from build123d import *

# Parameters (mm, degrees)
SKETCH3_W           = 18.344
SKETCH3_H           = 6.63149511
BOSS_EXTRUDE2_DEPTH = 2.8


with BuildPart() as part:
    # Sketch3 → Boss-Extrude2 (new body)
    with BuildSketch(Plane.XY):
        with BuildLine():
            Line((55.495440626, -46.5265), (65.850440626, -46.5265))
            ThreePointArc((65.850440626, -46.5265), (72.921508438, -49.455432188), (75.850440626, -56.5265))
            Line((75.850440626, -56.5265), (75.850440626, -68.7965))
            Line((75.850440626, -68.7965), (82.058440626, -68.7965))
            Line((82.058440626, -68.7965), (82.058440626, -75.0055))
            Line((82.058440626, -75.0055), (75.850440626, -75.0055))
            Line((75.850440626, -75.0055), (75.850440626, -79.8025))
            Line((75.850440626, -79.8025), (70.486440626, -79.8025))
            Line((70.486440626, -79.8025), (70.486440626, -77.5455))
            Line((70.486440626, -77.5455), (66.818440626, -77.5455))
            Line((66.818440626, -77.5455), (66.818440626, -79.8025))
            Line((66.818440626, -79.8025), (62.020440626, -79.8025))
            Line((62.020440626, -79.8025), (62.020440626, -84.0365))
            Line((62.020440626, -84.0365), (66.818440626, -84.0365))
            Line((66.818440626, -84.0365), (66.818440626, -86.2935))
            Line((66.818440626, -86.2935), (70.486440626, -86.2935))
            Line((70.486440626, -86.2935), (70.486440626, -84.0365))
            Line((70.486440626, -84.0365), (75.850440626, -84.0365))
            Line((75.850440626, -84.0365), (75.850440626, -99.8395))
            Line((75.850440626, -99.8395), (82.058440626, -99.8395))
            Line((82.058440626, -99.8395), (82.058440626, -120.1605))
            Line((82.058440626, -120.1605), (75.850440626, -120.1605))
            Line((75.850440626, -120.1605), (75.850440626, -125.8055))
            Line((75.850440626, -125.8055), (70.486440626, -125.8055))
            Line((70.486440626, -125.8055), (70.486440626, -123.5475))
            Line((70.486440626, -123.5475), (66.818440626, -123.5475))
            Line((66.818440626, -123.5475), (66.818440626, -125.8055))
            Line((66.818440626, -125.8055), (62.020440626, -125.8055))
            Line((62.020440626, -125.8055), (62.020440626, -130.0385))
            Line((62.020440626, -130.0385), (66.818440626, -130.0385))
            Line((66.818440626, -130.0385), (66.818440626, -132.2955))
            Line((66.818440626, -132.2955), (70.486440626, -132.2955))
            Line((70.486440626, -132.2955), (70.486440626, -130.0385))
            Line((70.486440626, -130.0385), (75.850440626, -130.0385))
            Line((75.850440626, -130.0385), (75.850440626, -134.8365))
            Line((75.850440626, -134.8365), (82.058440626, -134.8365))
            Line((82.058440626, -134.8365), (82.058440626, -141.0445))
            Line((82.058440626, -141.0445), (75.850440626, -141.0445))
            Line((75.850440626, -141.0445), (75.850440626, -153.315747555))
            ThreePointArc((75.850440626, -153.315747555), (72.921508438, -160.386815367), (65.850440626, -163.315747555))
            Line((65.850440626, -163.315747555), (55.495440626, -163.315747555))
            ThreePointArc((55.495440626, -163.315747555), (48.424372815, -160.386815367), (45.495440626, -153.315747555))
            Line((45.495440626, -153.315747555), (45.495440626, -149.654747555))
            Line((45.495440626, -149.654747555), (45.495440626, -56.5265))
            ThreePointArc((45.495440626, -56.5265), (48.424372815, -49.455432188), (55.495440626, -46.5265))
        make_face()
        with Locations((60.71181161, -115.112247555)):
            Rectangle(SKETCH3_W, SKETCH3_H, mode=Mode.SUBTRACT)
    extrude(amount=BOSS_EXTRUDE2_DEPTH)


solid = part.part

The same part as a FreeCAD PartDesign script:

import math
import FreeCAD as App
import Part
import Sketcher
Q = App.Units.Quantity

doc = App.newDocument("Part")
body = doc.addObject("PartDesign::Body", "Body")

# Sketch on XY plane
sketch1 = body.newObject("Sketcher::SketchObject", "Sketch")
sketch1.AttachmentSupport = (doc.getObject("XY_Plane"), [""])
sketch1.MapMode = "FlatFace"
sketch1.addGeometry([
    Part.LineSegment(App.Vector(65.850441, -46.5265, 0), App.Vector(55.495441, -46.5265, 0)),  # 0
    Part.ArcOfCircle(Part.Circle(App.Vector(55.495441, -56.5265, 0), App.Vector(0, 0, 1), 10), math.radians(90), math.radians(180)),  # 1
    Part.LineSegment(App.Vector(45.495441, -56.5265, 0), App.Vector(45.495441, -153.315748, 0)),  # 2
    Part.ArcOfCircle(Part.Circle(App.Vector(55.495441, -153.315748, 0), App.Vector(0, 0, 1), 10), math.radians(-180), math.radians(-90)),  # 3
    Part.LineSegment(App.Vector(55.495441, -163.315748, 0), App.Vector(65.850441, -163.315748, 0)),  # 4
    Part.ArcOfCircle(Part.Circle(App.Vector(65.850441, -153.315748, 0), App.Vector(0, 0, 1), 10), math.radians(-90), math.radians(0)),  # 5
    Part.LineSegment(App.Vector(75.850441, -153.315748, 0), App.Vector(75.850441, -141.0445, 0)),  # 6
    Part.LineSegment(App.Vector(75.850441, -141.0445, 0), App.Vector(82.058441, -141.0445, 0)),  # 7
    Part.LineSegment(App.Vector(82.058441, -141.0445, 0), App.Vector(82.058441, -134.8365, 0)),  # 8
    Part.LineSegment(App.Vector(82.058441, -134.8365, 0), App.Vector(75.850441, -134.8365, 0)),  # 9
    Part.LineSegment(App.Vector(75.850441, -134.8365, 0), App.Vector(75.850441, -130.0385, 0)),  # 10
    Part.LineSegment(App.Vector(75.850441, -130.0385, 0), App.Vector(70.486441, -130.0385, 0)),  # 11
    Part.LineSegment(App.Vector(70.486441, -130.0385, 0), App.Vector(70.486441, -132.2955, 0)),  # 12
    Part.LineSegment(App.Vector(70.486441, -132.2955, 0), App.Vector(66.818441, -132.2955, 0)),  # 13
    Part.LineSegment(App.Vector(66.818441, -132.2955, 0), App.Vector(66.818441, -130.0385, 0)),  # 14
    Part.LineSegment(App.Vector(66.818441, -130.0385, 0), App.Vector(62.020441, -130.0385, 0)),  # 15
    Part.LineSegment(App.Vector(62.020441, -130.0385, 0), App.Vector(62.020441, -125.8055, 0)),  # 16
    Part.LineSegment(App.Vector(62.020441, -125.8055, 0), App.Vector(66.818441, -125.8055, 0)),  # 17
    Part.LineSegment(App.Vector(66.818441, -125.8055, 0), App.Vector(66.818441, -123.5475, 0)),  # 18
    Part.LineSegment(App.Vector(66.818441, -123.5475, 0), App.Vector(70.486441, -123.5475, 0)),  # 19
    Part.LineSegment(App.Vector(70.486441, -123.5475, 0), App.Vector(70.486441, -125.8055, 0)),  # 20
    Part.LineSegment(App.Vector(70.486441, -125.8055, 0), App.Vector(75.850441, -125.8055, 0)),  # 21
    Part.LineSegment(App.Vector(75.850441, -125.8055, 0), App.Vector(75.850441, -120.1605, 0)),  # 22
    Part.LineSegment(App.Vector(75.850441, -120.1605, 0), App.Vector(82.058441, -120.1605, 0)),  # 23
    Part.LineSegment(App.Vector(82.058441, -120.1605, 0), App.Vector(82.058441, -99.8395, 0)),  # 24
    Part.LineSegment(App.Vector(82.058441, -99.8395, 0), App.Vector(75.850441, -99.8395, 0)),  # 25
    Part.LineSegment(App.Vector(75.850441, -99.8395, 0), App.Vector(75.850441, -84.0365, 0)),  # 26
    Part.LineSegment(App.Vector(75.850441, -84.0365, 0), App.Vector(70.486441, -84.0365, 0)),  # 27
    Part.LineSegment(App.Vector(70.486441, -84.0365, 0), App.Vector(70.486441, -86.2935, 0)),  # 28
    Part.LineSegment(App.Vector(70.486441, -86.2935, 0), App.Vector(66.818441, -86.2935, 0)),  # 29
    Part.LineSegment(App.Vector(66.818441, -86.2935, 0), App.Vector(66.818441, -84.0365, 0)),  # 30
    Part.LineSegment(App.Vector(66.818441, -84.0365, 0), App.Vector(62.020441, -84.0365, 0)),  # 31
    Part.LineSegment(App.Vector(62.020441, -84.0365, 0), App.Vector(62.020441, -79.8025, 0)),  # 32
    Part.LineSegment(App.Vector(62.020441, -79.8025, 0), App.Vector(66.818441, -79.8025, 0)),  # 33
    Part.LineSegment(App.Vector(66.818441, -79.8025, 0), App.Vector(66.818441, -77.5455, 0)),  # 34
    Part.LineSegment(App.Vector(66.818441, -77.5455, 0), App.Vector(70.486441, -77.5455, 0)),  # 35
    Part.LineSegment(App.Vector(70.486441, -77.5455, 0), App.Vector(70.486441, -79.8025, 0)),  # 36
    Part.LineSegment(App.Vector(70.486441, -79.8025, 0), App.Vector(75.850441, -79.8025, 0)),  # 37
    Part.LineSegment(App.Vector(75.850441, -79.8025, 0), App.Vector(75.850441, -75.0055, 0)),  # 38
    Part.LineSegment(App.Vector(75.850441, -75.0055, 0), App.Vector(82.058441, -75.0055, 0)),  # 39
    Part.LineSegment(App.Vector(82.058441, -75.0055, 0), App.Vector(82.058441, -68.7965, 0)),  # 40
    Part.LineSegment(App.Vector(82.058441, -68.7965, 0), App.Vector(75.850441, -68.7965, 0)),  # 41
    Part.LineSegment(App.Vector(75.850441, -68.7965, 0), App.Vector(75.850441, -56.5265, 0)),  # 42
    Part.ArcOfCircle(Part.Circle(App.Vector(65.850441, -56.5265, 0), App.Vector(0, 0, 1), 10), math.radians(0), math.radians(90)),  # 43
    Part.LineSegment(App.Vector(51.539812, -118.427995, 0), App.Vector(51.539812, -111.7965, 0)),  # 44
    Part.LineSegment(App.Vector(51.539812, -111.7965, 0), App.Vector(69.883812, -111.7965, 0)),  # 45
    Part.LineSegment(App.Vector(69.883812, -111.7965, 0), App.Vector(69.883812, -118.427995, 0)),  # 46
    Part.LineSegment(App.Vector(69.883812, -118.427995, 0), App.Vector(51.539812, -118.427995, 0)),  # 47
], False)
sketch1.addConstraint([
    Sketcher.Constraint("Tangent", 0, 2, 1, 1),
    Sketcher.Constraint("Tangent", 1, 2, 2, 1),
    Sketcher.Constraint("Tangent", 2, 2, 3, 1),
    Sketcher.Constraint("Tangent", 3, 2, 4, 1),
    Sketcher.Constraint("Tangent", 4, 2, 5, 1),
    Sketcher.Constraint("Tangent", 5, 2, 6, 1),
    Sketcher.Constraint("Coincident", 6, 2, 7, 1),
    Sketcher.Constraint("Coincident", 7, 2, 8, 1),
    Sketcher.Constraint("Coincident", 8, 2, 9, 1),
    Sketcher.Constraint("Coincident", 9, 2, 10, 1),
    Sketcher.Constraint("Coincident", 10, 2, 11, 1),
    Sketcher.Constraint("Coincident", 11, 2, 12, 1),
    Sketcher.Constraint("Coincident", 12, 2, 13, 1),
    Sketcher.Constraint("Coincident", 13, 2, 14, 1),
    Sketcher.Constraint("Coincident", 14, 2, 15, 1),
    Sketcher.Constraint("Coincident", 15, 2, 16, 1),
    Sketcher.Constraint("Coincident", 16, 2, 17, 1),
    Sketcher.Constraint("Coincident", 17, 2, 18, 1),
    Sketcher.Constraint("Coincident", 18, 2, 19, 1),
    Sketcher.Constraint("Coincident", 19, 2, 20, 1),
    Sketcher.Constraint("Coincident", 20, 2, 21, 1),
    Sketcher.Constraint("Coincident", 21, 2, 22, 1),
    Sketcher.Constraint("Coincident", 22, 2, 23, 1),
    Sketcher.Constraint("Coincident", 23, 2, 24, 1),
    Sketcher.Constraint("Coincident", 24, 2, 25, 1),
    Sketcher.Constraint("Coincident", 25, 2, 26, 1),
    Sketcher.Constraint("Coincident", 26, 2, 27, 1),
    Sketcher.Constraint("Coincident", 27, 2, 28, 1),
    Sketcher.Constraint("Coincident", 28, 2, 29, 1),
    Sketcher.Constraint("Coincident", 29, 2, 30, 1),
    Sketcher.Constraint("Coincident", 30, 2, 31, 1),
    Sketcher.Constraint("Coincident", 31, 2, 32, 1),
    Sketcher.Constraint("Coincident", 32, 2, 33, 1),
    Sketcher.Constraint("Coincident", 33, 2, 34, 1),
    Sketcher.Constraint("Coincident", 34, 2, 35, 1),
    Sketcher.Constraint("Coincident", 35, 2, 36, 1),
    Sketcher.Constraint("Coincident", 36, 2, 37, 1),
    Sketcher.Constraint("Coincident", 37, 2, 38, 1),
    Sketcher.Constraint("Coincident", 38, 2, 39, 1),
    Sketcher.Constraint("Coincident", 39, 2, 40, 1),
    Sketcher.Constraint("Coincident", 40, 2, 41, 1),
    Sketcher.Constraint("Coincident", 41, 2, 42, 1),
    Sketcher.Constraint("Tangent", 42, 2, 43, 1),
    Sketcher.Constraint("Tangent", 43, 2, 0, 1),
    Sketcher.Constraint("Coincident", 44, 2, 45, 1),
    Sketcher.Constraint("Coincident", 45, 2, 46, 1),
    Sketcher.Constraint("Coincident", 46, 2, 47, 1),
    Sketcher.Constraint("Coincident", 47, 2, 44, 1),
    Sketcher.Constraint("Horizontal", 0),
    Sketcher.Constraint("Vertical", 2),
    Sketcher.Constraint("Horizontal", 4),
    Sketcher.Constraint("Vertical", 6),
    Sketcher.Constraint("Horizontal", 7),
    Sketcher.Constraint("Vertical", 8),
    Sketcher.Constraint("Horizontal", 9),
    Sketcher.Constraint("Vertical", 10),
    Sketcher.Constraint("Horizontal", 11),
    Sketcher.Constraint("Vertical", 12),
    Sketcher.Constraint("Horizontal", 13),
    Sketcher.Constraint("Vertical", 14),
    Sketcher.Constraint("Horizontal", 15),
    Sketcher.Constraint("Vertical", 16),
    Sketcher.Constraint("Horizontal", 17),
    Sketcher.Constraint("Vertical", 18),
    Sketcher.Constraint("Horizontal", 19),
    Sketcher.Constraint("Vertical", 20),
    Sketcher.Constraint("Horizontal", 21),
    Sketcher.Constraint("Vertical", 22),
    Sketcher.Constraint("Horizontal", 23),
    Sketcher.Constraint("Vertical", 24),
    Sketcher.Constraint("Horizontal", 25),
    Sketcher.Constraint("Vertical", 26),
    Sketcher.Constraint("Horizontal", 27),
    Sketcher.Constraint("Vertical", 28),
    Sketcher.Constraint("Horizontal", 29),
    Sketcher.Constraint("Vertical", 30),
    Sketcher.Constraint("Horizontal", 31),
    Sketcher.Constraint("Vertical", 32),
    Sketcher.Constraint("Horizontal", 33),
    Sketcher.Constraint("Vertical", 34),
    Sketcher.Constraint("Horizontal", 35),
    Sketcher.Constraint("Vertical", 36),
    Sketcher.Constraint("Horizontal", 37),
    Sketcher.Constraint("Vertical", 38),
    Sketcher.Constraint("Horizontal", 39),
    Sketcher.Constraint("Vertical", 40),
    Sketcher.Constraint("Horizontal", 41),
    Sketcher.Constraint("Vertical", 42),
    Sketcher.Constraint("Vertical", 44),
    Sketcher.Constraint("Horizontal", 45),
    Sketcher.Constraint("Vertical", 46),
    Sketcher.Constraint("Horizontal", 47),
    Sketcher.Constraint("Equal", 1, 3),
    Sketcher.Constraint("Equal", 3, 5),
    Sketcher.Constraint("Equal", 5, 43),
    Sketcher.Constraint("Horizontal", 11, 2, 14, 2),
    Sketcher.Constraint("Horizontal", 17, 2, 20, 2),
    Sketcher.Constraint("Horizontal", 27, 2, 30, 2),
    Sketcher.Constraint("Horizontal", 33, 2, 36, 2),
    Sketcher.Constraint("Vertical", 5, 3, 43, 3),
    Sketcher.Constraint("Vertical", 6, 2, 9, 2),
    Sketcher.Constraint("Vertical", 14, 2, 17, 2),
    Sketcher.Constraint("Vertical", 12, 2, 19, 2),
    Sketcher.Constraint("Vertical", 10, 2, 21, 2),
    Sketcher.Constraint("Vertical", 8, 2, 23, 2),
    Sketcher.Constraint("Vertical", 22, 2, 25, 2),
    Sketcher.Constraint("Vertical", 20, 2, 27, 2),
    Sketcher.Constraint("Vertical", 18, 2, 29, 2),
    Sketcher.Constraint("Vertical", 16, 2, 31, 2),
    Sketcher.Constraint("Vertical", 30, 2, 33, 2),
    Sketcher.Constraint("Vertical", 28, 2, 35, 2),
    Sketcher.Constraint("Vertical", 26, 2, 37, 2),
    Sketcher.Constraint("Vertical", 24, 2, 39, 2),
    Sketcher.Constraint("Equal", 41, 8),
    Sketcher.Constraint("Equal", 33, 10),
    Sketcher.Constraint("Equal", 14, 28),
    Sketcher.Constraint("Equal", 30, 34),
    Sketcher.Constraint("Radius", 1, Q("10 mm")),
    Sketcher.Constraint("DistanceY", 42, 1, 42, 2, Q("12.27 mm")),
    Sketcher.Constraint("DistanceX", 0, 2, 0, 1, Q("10.355 mm")),
    Sketcher.Constraint("DistanceX", 7, 1, 7, 2, Q("6.208 mm")),
    Sketcher.Constraint("DistanceX", 11, 2, 11, 1, Q("5.364 mm")),
    Sketcher.Constraint("DistanceX", 13, 2, 13, 1, Q("3.668 mm")),
    Sketcher.Constraint("DistanceX", 15, 2, 15, 1, Q("4.798 mm")),
    Sketcher.Constraint("DistanceX", 45, 1, 45, 2, Q("18.344 mm")),
    Sketcher.Constraint("DistanceY", 12, 2, 12, 1, Q("2.257 mm")),
    Sketcher.Constraint("DistanceY", 16, 1, 16, 2, Q("4.233 mm")),
    Sketcher.Constraint("DistanceY", 18, 1, 18, 2, Q("2.258 mm")),
    Sketcher.Constraint("DistanceY", 22, 1, 22, 2, Q("5.645 mm")),
    Sketcher.Constraint("DistanceY", 24, 1, 24, 2, Q("20.321 mm")),
    Sketcher.Constraint("DistanceY", 26, 1, 26, 2, Q("15.803 mm")),
    Sketcher.Constraint("DistanceY", 32, 1, 32, 2, Q("4.234 mm")),
    Sketcher.Constraint("DistanceY", 38, 1, 38, 2, Q("4.797 mm")),
    Sketcher.Constraint("DistanceY", 40, 1, 40, 2, Q("6.209 mm")),
    Sketcher.Constraint("DistanceY", 16, 2, 44, 2, Q("14.009 mm")),
    Sketcher.Constraint("DistanceY", 1, 3, -1, 1, Q("56.5265 mm")),
    Sketcher.Constraint("DistanceY", 2, 2, 2, 1, Q("96.789248 mm")),
    Sketcher.Constraint("DistanceY", 44, 1, 44, 2, Q("6.631495 mm")),
    Sketcher.Constraint("DistanceX", -1, 1, 1, 3, Q("55.495441 mm")),
    Sketcher.Constraint("DistanceX", -1, 1, 44, 2, Q("51.539812 mm")),
])
pad1 = body.newObject("PartDesign::Pad", "Pad")
pad1.Profile = sketch1
pad1.Length = 2.8

doc.recompute()
